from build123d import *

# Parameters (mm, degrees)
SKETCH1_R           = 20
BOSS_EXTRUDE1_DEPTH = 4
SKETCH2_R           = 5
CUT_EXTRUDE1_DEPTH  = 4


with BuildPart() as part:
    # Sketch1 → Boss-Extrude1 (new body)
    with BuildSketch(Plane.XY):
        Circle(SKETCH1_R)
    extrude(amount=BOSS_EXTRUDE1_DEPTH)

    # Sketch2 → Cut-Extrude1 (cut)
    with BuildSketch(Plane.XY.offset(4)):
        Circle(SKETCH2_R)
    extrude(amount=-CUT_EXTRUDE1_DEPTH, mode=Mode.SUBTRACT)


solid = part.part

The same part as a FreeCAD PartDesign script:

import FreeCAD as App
import Part
import Sketcher
from FreeCAD import Vector

doc = App.newDocument("Part")
body = doc.addObject("PartDesign::Body", "Body")

# Sketch on XY plane
sketch1 = body.newObject("Sketcher::SketchObject", "Sketch")
sketch1.AttachmentSupport = (doc.getObject("XY_Plane"), [""])
sketch1.MapMode = "FlatFace"
sketch1.addGeometry(Part.Circle(Vector(0, 0, 0), Vector(0, 0, 1), 20), False)
sketch1.addConstraint(Sketcher.Constraint("Coincident", 0, 3, -1, 1))
sketch1.addConstraint(Sketcher.Constraint("Diameter", 0, 40.0))
pad1 = body.newObject("PartDesign::Pad", "Pad")
pad1.Profile = sketch1
pad1.Length = 4

# Sketch on XY plane
sketch2 = body.newObject("Sketcher::SketchObject", "Sketch001")
sketch2.AttachmentSupport = (doc.getObject("XY_Plane"), [""])
sketch2.MapMode = "FlatFace"
sketch2.AttachmentOffset = App.Placement(Vector(0, 0, 4), App.Rotation())
sketch2.addGeometry(Part.Circle(Vector(0, 0, 0), Vector(0, 0, 1), 5), False)
sketch2.addConstraint(Sketcher.Constraint("Coincident", 0, 3, -1, 1))
sketch2.addConstraint(Sketcher.Constraint("Diameter", 0, 10.0))
pocket1 = body.newObject("PartDesign::Pocket", "Pocket")
pocket1.Profile = sketch2
pocket1.Length = 4

doc.recompute()
